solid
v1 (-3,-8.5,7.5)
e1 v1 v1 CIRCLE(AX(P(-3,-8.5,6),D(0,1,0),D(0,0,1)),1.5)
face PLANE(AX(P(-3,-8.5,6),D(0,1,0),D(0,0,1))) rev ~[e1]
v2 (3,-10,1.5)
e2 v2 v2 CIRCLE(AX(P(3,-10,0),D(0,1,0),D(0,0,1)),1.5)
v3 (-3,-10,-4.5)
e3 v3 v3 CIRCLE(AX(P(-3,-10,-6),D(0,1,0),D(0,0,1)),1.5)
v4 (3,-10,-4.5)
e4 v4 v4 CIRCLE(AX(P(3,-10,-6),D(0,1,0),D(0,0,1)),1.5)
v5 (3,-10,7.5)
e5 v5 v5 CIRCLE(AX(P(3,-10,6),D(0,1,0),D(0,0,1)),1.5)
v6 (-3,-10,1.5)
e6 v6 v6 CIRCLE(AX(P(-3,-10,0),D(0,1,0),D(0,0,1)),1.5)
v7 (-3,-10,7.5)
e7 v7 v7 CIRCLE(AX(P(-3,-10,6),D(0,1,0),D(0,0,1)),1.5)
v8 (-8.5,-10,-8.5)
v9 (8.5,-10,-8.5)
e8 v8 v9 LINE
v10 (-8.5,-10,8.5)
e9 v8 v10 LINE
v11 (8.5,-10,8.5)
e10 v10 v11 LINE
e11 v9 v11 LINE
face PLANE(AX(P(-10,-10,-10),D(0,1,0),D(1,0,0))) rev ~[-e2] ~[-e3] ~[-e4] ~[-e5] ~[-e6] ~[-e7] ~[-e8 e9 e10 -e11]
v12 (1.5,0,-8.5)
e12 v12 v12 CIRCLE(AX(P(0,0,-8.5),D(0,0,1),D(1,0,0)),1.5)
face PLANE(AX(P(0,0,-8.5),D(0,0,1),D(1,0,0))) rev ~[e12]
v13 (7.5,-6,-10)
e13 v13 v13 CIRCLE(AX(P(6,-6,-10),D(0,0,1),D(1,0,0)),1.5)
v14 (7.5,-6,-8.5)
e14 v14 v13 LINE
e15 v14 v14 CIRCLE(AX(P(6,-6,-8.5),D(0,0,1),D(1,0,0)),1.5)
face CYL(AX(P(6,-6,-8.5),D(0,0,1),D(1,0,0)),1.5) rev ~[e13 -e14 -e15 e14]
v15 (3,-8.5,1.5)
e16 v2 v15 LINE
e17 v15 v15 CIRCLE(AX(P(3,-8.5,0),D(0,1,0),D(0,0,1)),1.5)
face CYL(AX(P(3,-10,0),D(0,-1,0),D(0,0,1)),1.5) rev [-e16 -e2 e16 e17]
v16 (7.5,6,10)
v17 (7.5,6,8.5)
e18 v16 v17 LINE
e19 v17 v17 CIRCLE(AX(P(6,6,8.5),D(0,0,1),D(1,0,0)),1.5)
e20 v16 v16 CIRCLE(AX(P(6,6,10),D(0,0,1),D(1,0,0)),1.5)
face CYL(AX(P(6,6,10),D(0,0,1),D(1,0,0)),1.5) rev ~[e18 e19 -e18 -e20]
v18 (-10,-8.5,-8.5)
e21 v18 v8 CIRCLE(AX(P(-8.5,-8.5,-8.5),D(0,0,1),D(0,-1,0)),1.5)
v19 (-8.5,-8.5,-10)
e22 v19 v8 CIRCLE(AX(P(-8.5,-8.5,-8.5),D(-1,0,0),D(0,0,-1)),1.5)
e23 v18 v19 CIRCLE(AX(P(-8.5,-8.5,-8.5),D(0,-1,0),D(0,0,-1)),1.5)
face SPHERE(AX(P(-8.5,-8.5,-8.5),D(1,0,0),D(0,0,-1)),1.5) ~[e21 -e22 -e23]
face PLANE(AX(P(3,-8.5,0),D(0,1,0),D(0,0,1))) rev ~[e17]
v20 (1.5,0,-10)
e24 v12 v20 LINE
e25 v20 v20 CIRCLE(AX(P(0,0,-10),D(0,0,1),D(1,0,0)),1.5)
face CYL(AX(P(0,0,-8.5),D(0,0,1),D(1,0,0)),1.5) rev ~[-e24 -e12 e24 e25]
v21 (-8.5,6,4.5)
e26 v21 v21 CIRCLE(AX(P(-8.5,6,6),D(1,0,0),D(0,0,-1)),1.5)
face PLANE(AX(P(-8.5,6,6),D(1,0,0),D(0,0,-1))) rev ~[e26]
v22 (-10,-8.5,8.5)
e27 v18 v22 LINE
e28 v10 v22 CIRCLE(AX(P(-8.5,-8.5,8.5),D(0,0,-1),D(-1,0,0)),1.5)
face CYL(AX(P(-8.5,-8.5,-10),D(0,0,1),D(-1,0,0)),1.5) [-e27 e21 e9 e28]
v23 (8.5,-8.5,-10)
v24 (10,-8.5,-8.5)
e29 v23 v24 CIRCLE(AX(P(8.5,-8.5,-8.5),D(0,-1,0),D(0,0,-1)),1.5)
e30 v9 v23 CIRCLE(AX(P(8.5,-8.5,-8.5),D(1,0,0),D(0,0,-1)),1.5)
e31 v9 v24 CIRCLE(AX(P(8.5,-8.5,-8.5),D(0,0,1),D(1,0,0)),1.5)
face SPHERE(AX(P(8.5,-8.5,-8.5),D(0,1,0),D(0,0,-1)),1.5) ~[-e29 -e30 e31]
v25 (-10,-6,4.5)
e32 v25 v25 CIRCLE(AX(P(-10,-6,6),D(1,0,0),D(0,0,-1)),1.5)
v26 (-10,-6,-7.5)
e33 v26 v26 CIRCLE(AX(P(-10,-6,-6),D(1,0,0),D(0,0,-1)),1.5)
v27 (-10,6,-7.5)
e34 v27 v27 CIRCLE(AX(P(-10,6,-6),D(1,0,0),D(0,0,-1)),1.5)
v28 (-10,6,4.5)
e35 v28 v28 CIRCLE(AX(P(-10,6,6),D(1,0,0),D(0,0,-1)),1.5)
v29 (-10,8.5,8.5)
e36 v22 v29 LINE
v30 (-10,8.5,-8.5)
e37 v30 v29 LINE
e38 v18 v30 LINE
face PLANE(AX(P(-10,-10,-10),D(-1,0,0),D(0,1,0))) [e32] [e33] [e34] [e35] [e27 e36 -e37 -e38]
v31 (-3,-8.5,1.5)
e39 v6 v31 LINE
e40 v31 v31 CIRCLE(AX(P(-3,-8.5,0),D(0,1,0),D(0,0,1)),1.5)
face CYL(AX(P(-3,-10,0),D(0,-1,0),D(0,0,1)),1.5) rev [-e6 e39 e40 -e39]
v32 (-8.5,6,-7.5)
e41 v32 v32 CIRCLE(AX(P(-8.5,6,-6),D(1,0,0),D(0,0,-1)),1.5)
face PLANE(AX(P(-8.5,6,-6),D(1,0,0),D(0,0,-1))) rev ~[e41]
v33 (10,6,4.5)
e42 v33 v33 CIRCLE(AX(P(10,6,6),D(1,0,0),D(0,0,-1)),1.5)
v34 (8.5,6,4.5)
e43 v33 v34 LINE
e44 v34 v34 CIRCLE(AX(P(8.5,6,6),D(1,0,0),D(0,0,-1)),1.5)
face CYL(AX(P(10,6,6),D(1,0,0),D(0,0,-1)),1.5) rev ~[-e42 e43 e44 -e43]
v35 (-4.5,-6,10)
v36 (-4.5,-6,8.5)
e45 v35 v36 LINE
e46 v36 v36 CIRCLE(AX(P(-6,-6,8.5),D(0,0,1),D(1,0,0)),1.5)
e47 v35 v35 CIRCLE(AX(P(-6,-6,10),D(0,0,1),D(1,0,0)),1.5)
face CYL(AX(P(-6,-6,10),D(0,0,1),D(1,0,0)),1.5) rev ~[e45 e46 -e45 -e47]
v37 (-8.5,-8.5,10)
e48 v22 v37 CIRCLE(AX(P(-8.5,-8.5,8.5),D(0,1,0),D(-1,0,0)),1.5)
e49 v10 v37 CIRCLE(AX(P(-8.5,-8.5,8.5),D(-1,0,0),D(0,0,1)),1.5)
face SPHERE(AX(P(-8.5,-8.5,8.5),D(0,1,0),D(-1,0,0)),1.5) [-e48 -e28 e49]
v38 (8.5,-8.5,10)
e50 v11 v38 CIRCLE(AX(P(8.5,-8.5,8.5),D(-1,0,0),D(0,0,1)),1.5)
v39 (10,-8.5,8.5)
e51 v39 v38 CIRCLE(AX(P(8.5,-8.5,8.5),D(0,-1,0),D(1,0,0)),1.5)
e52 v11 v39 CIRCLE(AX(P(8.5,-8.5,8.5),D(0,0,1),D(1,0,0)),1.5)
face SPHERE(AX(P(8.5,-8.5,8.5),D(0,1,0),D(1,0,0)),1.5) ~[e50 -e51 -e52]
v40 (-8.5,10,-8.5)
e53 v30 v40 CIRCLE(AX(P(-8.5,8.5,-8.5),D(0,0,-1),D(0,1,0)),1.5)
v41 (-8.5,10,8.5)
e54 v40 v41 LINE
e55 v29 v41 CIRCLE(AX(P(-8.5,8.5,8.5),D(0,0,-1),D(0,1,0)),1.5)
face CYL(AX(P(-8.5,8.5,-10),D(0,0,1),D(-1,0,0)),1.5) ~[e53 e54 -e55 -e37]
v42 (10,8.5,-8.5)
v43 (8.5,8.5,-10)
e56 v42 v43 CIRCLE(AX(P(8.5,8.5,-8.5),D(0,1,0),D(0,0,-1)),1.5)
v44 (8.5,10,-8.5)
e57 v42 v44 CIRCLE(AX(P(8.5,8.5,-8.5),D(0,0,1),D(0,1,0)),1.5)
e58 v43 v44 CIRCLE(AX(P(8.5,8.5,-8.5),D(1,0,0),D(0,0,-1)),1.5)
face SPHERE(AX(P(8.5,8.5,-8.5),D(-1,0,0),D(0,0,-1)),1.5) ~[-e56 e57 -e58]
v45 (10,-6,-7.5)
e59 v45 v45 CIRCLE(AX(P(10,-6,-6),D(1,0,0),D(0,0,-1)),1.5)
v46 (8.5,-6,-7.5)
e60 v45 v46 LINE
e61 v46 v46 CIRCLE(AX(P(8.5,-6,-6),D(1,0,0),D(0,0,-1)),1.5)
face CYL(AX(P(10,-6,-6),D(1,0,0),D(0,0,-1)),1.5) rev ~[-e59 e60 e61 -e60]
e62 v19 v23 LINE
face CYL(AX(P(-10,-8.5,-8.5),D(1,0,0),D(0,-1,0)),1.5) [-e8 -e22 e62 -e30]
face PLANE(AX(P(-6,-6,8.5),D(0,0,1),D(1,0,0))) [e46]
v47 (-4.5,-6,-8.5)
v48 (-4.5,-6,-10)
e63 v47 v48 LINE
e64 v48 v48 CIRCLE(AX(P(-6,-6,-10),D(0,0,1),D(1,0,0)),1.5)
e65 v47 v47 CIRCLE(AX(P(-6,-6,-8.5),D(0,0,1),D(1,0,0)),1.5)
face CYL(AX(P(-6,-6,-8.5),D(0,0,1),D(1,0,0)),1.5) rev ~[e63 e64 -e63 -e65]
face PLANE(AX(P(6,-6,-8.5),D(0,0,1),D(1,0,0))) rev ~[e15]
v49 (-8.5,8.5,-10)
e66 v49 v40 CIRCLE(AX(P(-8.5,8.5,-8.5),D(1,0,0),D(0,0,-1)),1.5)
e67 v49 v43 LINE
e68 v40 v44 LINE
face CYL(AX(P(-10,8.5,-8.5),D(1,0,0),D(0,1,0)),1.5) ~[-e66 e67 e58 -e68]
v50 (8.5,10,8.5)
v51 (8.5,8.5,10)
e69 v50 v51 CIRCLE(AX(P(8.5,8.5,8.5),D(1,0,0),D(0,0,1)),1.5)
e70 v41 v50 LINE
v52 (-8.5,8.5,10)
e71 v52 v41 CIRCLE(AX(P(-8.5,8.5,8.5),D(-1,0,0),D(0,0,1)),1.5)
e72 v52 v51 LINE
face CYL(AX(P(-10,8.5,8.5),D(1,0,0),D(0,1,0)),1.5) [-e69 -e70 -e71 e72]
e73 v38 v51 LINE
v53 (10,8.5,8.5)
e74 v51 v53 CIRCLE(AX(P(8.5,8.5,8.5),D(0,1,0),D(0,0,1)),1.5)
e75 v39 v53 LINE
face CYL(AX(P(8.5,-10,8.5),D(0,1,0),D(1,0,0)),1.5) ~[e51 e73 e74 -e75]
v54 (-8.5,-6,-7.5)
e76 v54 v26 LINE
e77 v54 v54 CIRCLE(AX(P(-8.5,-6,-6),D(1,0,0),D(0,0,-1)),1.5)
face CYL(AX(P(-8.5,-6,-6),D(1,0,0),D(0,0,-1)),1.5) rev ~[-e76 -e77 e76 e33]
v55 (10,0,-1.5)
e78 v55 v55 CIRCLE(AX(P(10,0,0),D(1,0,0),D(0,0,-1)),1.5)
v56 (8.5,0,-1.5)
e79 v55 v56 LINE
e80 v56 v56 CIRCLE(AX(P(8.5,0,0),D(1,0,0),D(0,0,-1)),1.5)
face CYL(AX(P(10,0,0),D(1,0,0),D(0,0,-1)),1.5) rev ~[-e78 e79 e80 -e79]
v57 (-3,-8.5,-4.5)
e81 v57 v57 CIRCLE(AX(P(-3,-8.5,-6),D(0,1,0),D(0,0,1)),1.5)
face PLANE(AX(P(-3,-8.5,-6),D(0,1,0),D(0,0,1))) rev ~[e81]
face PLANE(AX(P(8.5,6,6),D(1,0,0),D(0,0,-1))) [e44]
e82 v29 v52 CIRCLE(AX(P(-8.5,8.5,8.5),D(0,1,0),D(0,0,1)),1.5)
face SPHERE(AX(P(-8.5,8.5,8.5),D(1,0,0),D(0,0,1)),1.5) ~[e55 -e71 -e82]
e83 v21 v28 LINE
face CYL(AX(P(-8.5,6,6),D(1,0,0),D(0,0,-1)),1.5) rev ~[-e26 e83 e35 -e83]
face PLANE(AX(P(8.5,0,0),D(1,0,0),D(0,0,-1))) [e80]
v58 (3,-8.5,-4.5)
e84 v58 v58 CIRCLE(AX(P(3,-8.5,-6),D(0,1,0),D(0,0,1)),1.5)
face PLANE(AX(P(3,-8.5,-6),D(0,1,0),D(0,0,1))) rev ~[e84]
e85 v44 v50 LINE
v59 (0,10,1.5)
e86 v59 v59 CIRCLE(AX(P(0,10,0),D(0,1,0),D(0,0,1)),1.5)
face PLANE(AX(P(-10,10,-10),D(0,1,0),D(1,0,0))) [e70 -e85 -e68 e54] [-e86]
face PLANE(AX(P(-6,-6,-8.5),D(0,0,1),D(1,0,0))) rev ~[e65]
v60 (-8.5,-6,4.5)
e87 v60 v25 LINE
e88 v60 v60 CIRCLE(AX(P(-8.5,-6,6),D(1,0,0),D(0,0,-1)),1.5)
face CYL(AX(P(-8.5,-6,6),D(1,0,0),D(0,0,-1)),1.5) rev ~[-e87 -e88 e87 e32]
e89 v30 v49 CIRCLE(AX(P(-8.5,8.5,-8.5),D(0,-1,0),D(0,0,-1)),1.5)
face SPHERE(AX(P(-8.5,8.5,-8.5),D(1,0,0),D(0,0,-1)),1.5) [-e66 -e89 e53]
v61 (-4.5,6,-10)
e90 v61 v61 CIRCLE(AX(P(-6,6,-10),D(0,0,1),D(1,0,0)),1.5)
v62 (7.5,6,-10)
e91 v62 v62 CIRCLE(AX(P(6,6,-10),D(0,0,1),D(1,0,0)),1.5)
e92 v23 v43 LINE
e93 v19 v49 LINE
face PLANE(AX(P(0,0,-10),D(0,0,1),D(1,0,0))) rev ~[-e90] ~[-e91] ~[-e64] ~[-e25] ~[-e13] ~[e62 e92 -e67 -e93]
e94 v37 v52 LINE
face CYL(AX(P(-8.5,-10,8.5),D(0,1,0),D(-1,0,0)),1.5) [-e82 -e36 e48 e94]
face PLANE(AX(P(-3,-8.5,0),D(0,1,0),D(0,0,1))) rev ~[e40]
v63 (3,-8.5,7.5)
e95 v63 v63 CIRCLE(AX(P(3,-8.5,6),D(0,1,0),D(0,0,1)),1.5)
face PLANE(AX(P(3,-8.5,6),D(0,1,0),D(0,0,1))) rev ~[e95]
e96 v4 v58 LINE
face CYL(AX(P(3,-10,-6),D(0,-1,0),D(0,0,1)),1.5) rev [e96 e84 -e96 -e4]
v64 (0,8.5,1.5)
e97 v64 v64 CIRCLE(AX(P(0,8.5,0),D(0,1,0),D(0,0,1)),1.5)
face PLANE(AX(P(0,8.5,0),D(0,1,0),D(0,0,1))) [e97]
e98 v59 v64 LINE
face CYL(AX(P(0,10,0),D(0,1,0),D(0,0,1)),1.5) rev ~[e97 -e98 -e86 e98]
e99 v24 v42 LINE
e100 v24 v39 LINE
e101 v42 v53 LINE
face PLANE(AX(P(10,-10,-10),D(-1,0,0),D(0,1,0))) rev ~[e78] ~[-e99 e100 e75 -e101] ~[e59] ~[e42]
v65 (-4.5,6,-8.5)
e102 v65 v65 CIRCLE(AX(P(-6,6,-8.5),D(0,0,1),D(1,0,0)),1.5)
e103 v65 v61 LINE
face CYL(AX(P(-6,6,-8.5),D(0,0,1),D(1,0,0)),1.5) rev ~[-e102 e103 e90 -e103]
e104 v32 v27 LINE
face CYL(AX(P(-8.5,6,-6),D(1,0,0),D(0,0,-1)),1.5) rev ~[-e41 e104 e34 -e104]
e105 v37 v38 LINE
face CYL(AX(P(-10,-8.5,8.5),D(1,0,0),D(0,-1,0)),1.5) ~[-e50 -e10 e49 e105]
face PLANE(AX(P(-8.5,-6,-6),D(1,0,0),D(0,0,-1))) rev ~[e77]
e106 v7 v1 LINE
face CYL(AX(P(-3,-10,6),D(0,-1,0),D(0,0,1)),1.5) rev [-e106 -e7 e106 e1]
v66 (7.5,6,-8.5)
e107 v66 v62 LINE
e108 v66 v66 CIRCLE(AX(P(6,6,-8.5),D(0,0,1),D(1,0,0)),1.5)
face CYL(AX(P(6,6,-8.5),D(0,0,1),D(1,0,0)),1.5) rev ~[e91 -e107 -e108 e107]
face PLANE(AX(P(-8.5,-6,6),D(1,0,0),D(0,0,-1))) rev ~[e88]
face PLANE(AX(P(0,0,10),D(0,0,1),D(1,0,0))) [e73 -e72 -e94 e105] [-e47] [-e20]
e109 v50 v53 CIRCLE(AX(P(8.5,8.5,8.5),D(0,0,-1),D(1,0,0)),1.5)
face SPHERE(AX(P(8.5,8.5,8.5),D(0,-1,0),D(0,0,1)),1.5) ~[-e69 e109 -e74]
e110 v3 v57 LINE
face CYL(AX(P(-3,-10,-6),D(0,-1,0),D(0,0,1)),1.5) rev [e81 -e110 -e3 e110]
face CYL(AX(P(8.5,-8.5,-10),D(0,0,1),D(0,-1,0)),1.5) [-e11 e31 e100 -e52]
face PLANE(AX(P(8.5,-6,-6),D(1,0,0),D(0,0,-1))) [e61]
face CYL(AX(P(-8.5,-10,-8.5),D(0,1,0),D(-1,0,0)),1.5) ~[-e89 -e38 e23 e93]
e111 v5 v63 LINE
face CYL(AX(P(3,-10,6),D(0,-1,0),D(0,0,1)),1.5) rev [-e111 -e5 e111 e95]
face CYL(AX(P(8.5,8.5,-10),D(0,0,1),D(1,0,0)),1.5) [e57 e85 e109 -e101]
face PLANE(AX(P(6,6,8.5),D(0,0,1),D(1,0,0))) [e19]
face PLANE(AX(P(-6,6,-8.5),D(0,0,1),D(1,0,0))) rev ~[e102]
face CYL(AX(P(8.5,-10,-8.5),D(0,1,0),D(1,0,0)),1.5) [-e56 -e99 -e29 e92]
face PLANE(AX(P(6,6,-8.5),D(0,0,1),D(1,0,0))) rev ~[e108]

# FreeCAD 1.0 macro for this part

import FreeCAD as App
import Part
import Sketcher

V = App.Vector
Q = App.Units.Quantity


def add_polygon(sketch, points):
    """Adds a closed chain of lines whose ends are joined by coincident constraints."""
    first, n = sketch.GeometryCount, len(points)
    for a, b in zip(points, points[1:] + points[:1]):
        sketch.addGeometry(Part.LineSegment(App.Vector(*a, 0), App.Vector(*b, 0)), False)
    for i in range(n):
        sketch.addConstraint(Sketcher.Constraint("Coincident", first + i, 2, first + (i + 1) % n, 1))

doc = App.newDocument("Part")
body = doc.addObject("PartDesign::Body", "Body")

sketch1 = body.newObject("Sketcher::SketchObject", "Sketch")
sketch1.AttachmentSupport = (doc.getObject("XY_Plane"), [""])
sketch1.MapMode = "FlatFace"
sketch1.AttachmentOffset = App.Placement(V(0, 0, -10), App.Rotation())
add_polygon(sketch1, [(-10, 10), (-10, -10), (10, -10), (10, 10)])
sketch1.addConstraint([
    Sketcher.Constraint("Vertical", 0),
    Sketcher.Constraint("Horizontal", 1),
    Sketcher.Constraint("Vertical", 2),
    Sketcher.Constraint("Horizontal", 3),
    Sketcher.Constraint("Symmetric", 0, 2, 2, 2, -1, 1),
    Sketcher.Constraint("Equal", 3, 0),
    Sketcher.Constraint("DistanceX", 1, 1, 1, 2, Q("20 mm")),
])
pad1 = body.newObject("PartDesign::Pad", "Pad")
pad1.Profile = sketch1
pad1.Length = 20
doc.recompute()

fillet = body.newObject("PartDesign::Fillet", "Fillet")
fillet.Base = (pad1, ["Edge1"])
fillet.UseAllEdges = True
fillet.Radius = 1.5

sketch2 = body.newObject("Sketcher::SketchObject", "Sketch001")
sketch2.AttachmentSupport = (doc.getObject("XZ_Plane"), [""])
sketch2.MapMode = "FlatFace"
sketch2.AttachmentOffset = App.Placement(V(0, 0, -10), App.Rotation())
sketch2.addGeometry(Part.Circle(V(0, 0, 0), V(0, 0, 1), 1.5), False)
sketch2.addConstraint([
    Sketcher.Constraint("Coincident", 0, 3, -1, 1),
    Sketcher.Constraint("Diameter", 0, Q("3 mm")),
])
pocket1 = body.newObject("PartDesign::Pocket", "Pocket")
pocket1.Profile = sketch2
pocket1.Length = 1.5
pocket1.Reversed = True

sketch3 = body.newObject("Sketcher::SketchObject", "Sketch002")
sketch3.AttachmentSupport = (doc.getObject("XZ_Plane"), [""])
sketch3.MapMode = "FlatFace"
sketch3.AttachmentOffset = App.Placement(V(0, 0, 10), App.Rotation())
sketch3.addGeometry([
    Part.Circle(V(-3, -6, 0), V(0, 0, 1), 1.5),
    Part.Circle(V(-3, 0, 0), V(0, 0, 1), 1.5),
    Part.Circle(V(-3, 6, 0), V(0, 0, 1), 1.5),
    Part.Circle(V(3, -6, 0), V(0, 0, 1), 1.5),
    Part.Circle(V(3, 0, 0), V(0, 0, 1), 1.5),
    Part.Circle(V(3, 6, 0), V(0, 0, 1), 1.5),
], False)
sketch3.addConstraint([
    Sketcher.Constraint("Equal", 0, 1),
    Sketcher.Constraint("Equal", 1, 2),
    Sketcher.Constraint("Equal", 2, 3),
    Sketcher.Constraint("Equal", 3, 4),
    Sketcher.Constraint("Equal", 4, 5),
    Sketcher.Constraint("Symmetric", 2, 3, 3, 3, -1, 1),
    Sketcher.Constraint("Symmetric", 1, 3, 4, 3, -1, 1),
    Sketcher.Constraint("Symmetric", 0, 3, 5, 3, -1, 1),
    Sketcher.Constraint("Symmetric", 0, 3, 3, 3, -2),
    Sketcher.Constraint("PointOnObject", 1, 3, -1),
    Sketcher.Constraint("Vertical", 0, 3, 1, 3),
    Sketcher.Constraint("Diameter", 0, Q("3 mm")),
    Sketcher.Constraint("DistanceX", 0, 3, -1, 1, Q("3 mm")),
    Sketcher.Constraint("DistanceY", 0, 3, -1, 1, Q("6 mm")),
])
pocket2 = body.newObject("PartDesign::Pocket", "Pocket001")
pocket2.Profile = sketch3
pocket2.Length = 1.5

sketch4 = body.newObject("Sketcher::SketchObject", "Sketch003")
sketch4.AttachmentSupport = (doc.getObject("XY_Plane"), [""])
sketch4.MapMode = "FlatFace"
sketch4.AttachmentOffset = App.Placement(V(0, 0, 10), App.Rotation())
sketch4.addGeometry([
    Part.Circle(V(-6, -6, 0), V(0, 0, 1), 1.5),
    Part.Circle(V(6, 6, 0), V(0, 0, 1), 1.5),
], False)
sketch4.addConstraint([
    Sketcher.Constraint("Equal", 0, 1),
    Sketcher.Constraint("Symmetric", 0, 3, 1, 3, -1, 1),
    Sketcher.Constraint("Diameter", 0, Q("3 mm")),
    Sketcher.Constraint("DistanceX", 0, 3, -1, 1, Q("6 mm")),
    Sketcher.Constraint("DistanceY", 0, 3, -1, 1, Q("6 mm")),
])
pocket3 = body.newObject("PartDesign::Pocket", "Pocket002")
pocket3.Profile = sketch4
pocket3.Length = 1.5

sketch5 = body.newObject("Sketcher::SketchObject", "Sketch004")
sketch5.AttachmentSupport = (doc.getObject("XY_Plane"), [""])
sketch5.MapMode = "FlatFace"
sketch5.AttachmentOffset = App.Placement(V(0, 0, -8.5), App.Rotation())
sketch5.addGeometry([
    Part.Circle(V(-6, -6, 0), V(0, 0, 1), 1.5),
    Part.Circle(V(6, -6, 0), V(0, 0, 1), 1.5),
    Part.Circle(V(0, 0, 0), V(0, 0, 1), 1.5),
    Part.Circle(V(-6, 6, 0), V(0, 0, 1), 1.5),
    Part.Circle(V(6, 6, 0), V(0, 0, 1), 1.5),
], False)
sketch5.addConstraint([
    Sketcher.Constraint("Coincident", 2, 3, -1, 1),
    Sketcher.Constraint("Equal", 0, 1),
    Sketcher.Constraint("Equal", 1, 2),
    Sketcher.Constraint("Equal", 2, 3),
    Sketcher.Constraint("Equal", 3, 4),
    Sketcher.Constraint("Symmetric", 1, 3, 3, 3, -1, 1),
    Sketcher.Constraint("Symmetric", 0, 3, 4, 3, -1, 1),
    Sketcher.Constraint("Symmetric", 0, 3, 1, 3, -2),
    Sketcher.Constraint("Diameter", 0, Q("3 mm")),
    Sketcher.Constraint("DistanceX", 0, 3, -1, 1, Q("6 mm")),
    Sketcher.Constraint("DistanceY", 0, 3, -1, 1, Q("6 mm")),
])
pocket4 = body.newObject("PartDesign::Pocket", "Pocket003")
pocket4.Profile = sketch5
pocket4.Length = 1.5

sketch6 = body.newObject("Sketcher::SketchObject", "Sketch005")
sketch6.AttachmentSupport = (doc.getObject("YZ_Plane"), [""])
sketch6.MapMode = "FlatFace"
sketch6.AttachmentOffset = App.Placement(V(0, 0, 10), App.Rotation())
sketch6.addGeometry([
    Part.Circle(V(-6, -6, 0), V(0, 0, 1), 1.5),
    Part.Circle(V(0, 0, 0), V(0, 0, 1), 1.5),
    Part.Circle(V(6, 6, 0), V(0, 0, 1), 1.5),
], False)
sketch6.addConstraint([
    Sketcher.Constraint("Coincident", 1, 3, -1, 1),
    Sketcher.Constraint("Equal", 0, 1),
    Sketcher.Constraint("Equal", 1, 2),
    Sketcher.Constraint("Symmetric", 0, 3, 2, 3, -1, 1),
    Sketcher.Constraint("Diameter", 0, Q("3 mm")),
    Sketcher.Constraint("DistanceX", 0, 3, -1, 1, Q("6 mm")),
    Sketcher.Constraint("DistanceY", 0, 3, -1, 1, Q("6 mm")),
])
pocket5 = body.newObject("PartDesign::Pocket", "Pocket004")
pocket5.Profile = sketch6
pocket5.Length = 1.5

sketch7 = body.newObject("Sketcher::SketchObject", "Sketch006")
sketch7.AttachmentSupport = (doc.getObject("YZ_Plane"), [""])
sketch7.MapMode = "FlatFace"
sketch7.AttachmentOffset = App.Placement(V(0, 0, -8.5), App.Rotation())
sketch7.addGeometry([
    Part.Circle(V(-6, -6, 0), V(0, 0, 1), 1.5),
    Part.Circle(V(-6, 6, 0), V(0, 0, 1), 1.5),
    Part.Circle(V(6, -6, 0), V(0, 0, 1), 1.5),
    Part.Circle(V(6, 6, 0), V(0, 0, 1), 1.5),
], False)
sketch7.addConstraint([
    Sketcher.Constraint("Equal", 0, 1),
    Sketcher.Constraint("Equal", 1, 2),
    Sketcher.Constraint("Equal", 2, 3),
    Sketcher.Constraint("Symmetric", 1, 3, 2, 3, -1, 1),
    Sketcher.Constraint("Symmetric", 0, 3, 3, 3, -1, 1),
    Sketcher.Constraint("Symmetric", 0, 3, 2, 3, -2),
    Sketcher.Constraint("Diameter", 0, Q("3 mm")),
    Sketcher.Constraint("DistanceX", 0, 3, -1, 1, Q("6 mm")),
    Sketcher.Constraint("DistanceY", 0, 3, -1, 1, Q("6 mm")),
])
pocket6 = body.newObject("PartDesign::Pocket", "Pocket005")
pocket6.Profile = sketch7
pocket6.Length = 1.5

doc.recompute()
